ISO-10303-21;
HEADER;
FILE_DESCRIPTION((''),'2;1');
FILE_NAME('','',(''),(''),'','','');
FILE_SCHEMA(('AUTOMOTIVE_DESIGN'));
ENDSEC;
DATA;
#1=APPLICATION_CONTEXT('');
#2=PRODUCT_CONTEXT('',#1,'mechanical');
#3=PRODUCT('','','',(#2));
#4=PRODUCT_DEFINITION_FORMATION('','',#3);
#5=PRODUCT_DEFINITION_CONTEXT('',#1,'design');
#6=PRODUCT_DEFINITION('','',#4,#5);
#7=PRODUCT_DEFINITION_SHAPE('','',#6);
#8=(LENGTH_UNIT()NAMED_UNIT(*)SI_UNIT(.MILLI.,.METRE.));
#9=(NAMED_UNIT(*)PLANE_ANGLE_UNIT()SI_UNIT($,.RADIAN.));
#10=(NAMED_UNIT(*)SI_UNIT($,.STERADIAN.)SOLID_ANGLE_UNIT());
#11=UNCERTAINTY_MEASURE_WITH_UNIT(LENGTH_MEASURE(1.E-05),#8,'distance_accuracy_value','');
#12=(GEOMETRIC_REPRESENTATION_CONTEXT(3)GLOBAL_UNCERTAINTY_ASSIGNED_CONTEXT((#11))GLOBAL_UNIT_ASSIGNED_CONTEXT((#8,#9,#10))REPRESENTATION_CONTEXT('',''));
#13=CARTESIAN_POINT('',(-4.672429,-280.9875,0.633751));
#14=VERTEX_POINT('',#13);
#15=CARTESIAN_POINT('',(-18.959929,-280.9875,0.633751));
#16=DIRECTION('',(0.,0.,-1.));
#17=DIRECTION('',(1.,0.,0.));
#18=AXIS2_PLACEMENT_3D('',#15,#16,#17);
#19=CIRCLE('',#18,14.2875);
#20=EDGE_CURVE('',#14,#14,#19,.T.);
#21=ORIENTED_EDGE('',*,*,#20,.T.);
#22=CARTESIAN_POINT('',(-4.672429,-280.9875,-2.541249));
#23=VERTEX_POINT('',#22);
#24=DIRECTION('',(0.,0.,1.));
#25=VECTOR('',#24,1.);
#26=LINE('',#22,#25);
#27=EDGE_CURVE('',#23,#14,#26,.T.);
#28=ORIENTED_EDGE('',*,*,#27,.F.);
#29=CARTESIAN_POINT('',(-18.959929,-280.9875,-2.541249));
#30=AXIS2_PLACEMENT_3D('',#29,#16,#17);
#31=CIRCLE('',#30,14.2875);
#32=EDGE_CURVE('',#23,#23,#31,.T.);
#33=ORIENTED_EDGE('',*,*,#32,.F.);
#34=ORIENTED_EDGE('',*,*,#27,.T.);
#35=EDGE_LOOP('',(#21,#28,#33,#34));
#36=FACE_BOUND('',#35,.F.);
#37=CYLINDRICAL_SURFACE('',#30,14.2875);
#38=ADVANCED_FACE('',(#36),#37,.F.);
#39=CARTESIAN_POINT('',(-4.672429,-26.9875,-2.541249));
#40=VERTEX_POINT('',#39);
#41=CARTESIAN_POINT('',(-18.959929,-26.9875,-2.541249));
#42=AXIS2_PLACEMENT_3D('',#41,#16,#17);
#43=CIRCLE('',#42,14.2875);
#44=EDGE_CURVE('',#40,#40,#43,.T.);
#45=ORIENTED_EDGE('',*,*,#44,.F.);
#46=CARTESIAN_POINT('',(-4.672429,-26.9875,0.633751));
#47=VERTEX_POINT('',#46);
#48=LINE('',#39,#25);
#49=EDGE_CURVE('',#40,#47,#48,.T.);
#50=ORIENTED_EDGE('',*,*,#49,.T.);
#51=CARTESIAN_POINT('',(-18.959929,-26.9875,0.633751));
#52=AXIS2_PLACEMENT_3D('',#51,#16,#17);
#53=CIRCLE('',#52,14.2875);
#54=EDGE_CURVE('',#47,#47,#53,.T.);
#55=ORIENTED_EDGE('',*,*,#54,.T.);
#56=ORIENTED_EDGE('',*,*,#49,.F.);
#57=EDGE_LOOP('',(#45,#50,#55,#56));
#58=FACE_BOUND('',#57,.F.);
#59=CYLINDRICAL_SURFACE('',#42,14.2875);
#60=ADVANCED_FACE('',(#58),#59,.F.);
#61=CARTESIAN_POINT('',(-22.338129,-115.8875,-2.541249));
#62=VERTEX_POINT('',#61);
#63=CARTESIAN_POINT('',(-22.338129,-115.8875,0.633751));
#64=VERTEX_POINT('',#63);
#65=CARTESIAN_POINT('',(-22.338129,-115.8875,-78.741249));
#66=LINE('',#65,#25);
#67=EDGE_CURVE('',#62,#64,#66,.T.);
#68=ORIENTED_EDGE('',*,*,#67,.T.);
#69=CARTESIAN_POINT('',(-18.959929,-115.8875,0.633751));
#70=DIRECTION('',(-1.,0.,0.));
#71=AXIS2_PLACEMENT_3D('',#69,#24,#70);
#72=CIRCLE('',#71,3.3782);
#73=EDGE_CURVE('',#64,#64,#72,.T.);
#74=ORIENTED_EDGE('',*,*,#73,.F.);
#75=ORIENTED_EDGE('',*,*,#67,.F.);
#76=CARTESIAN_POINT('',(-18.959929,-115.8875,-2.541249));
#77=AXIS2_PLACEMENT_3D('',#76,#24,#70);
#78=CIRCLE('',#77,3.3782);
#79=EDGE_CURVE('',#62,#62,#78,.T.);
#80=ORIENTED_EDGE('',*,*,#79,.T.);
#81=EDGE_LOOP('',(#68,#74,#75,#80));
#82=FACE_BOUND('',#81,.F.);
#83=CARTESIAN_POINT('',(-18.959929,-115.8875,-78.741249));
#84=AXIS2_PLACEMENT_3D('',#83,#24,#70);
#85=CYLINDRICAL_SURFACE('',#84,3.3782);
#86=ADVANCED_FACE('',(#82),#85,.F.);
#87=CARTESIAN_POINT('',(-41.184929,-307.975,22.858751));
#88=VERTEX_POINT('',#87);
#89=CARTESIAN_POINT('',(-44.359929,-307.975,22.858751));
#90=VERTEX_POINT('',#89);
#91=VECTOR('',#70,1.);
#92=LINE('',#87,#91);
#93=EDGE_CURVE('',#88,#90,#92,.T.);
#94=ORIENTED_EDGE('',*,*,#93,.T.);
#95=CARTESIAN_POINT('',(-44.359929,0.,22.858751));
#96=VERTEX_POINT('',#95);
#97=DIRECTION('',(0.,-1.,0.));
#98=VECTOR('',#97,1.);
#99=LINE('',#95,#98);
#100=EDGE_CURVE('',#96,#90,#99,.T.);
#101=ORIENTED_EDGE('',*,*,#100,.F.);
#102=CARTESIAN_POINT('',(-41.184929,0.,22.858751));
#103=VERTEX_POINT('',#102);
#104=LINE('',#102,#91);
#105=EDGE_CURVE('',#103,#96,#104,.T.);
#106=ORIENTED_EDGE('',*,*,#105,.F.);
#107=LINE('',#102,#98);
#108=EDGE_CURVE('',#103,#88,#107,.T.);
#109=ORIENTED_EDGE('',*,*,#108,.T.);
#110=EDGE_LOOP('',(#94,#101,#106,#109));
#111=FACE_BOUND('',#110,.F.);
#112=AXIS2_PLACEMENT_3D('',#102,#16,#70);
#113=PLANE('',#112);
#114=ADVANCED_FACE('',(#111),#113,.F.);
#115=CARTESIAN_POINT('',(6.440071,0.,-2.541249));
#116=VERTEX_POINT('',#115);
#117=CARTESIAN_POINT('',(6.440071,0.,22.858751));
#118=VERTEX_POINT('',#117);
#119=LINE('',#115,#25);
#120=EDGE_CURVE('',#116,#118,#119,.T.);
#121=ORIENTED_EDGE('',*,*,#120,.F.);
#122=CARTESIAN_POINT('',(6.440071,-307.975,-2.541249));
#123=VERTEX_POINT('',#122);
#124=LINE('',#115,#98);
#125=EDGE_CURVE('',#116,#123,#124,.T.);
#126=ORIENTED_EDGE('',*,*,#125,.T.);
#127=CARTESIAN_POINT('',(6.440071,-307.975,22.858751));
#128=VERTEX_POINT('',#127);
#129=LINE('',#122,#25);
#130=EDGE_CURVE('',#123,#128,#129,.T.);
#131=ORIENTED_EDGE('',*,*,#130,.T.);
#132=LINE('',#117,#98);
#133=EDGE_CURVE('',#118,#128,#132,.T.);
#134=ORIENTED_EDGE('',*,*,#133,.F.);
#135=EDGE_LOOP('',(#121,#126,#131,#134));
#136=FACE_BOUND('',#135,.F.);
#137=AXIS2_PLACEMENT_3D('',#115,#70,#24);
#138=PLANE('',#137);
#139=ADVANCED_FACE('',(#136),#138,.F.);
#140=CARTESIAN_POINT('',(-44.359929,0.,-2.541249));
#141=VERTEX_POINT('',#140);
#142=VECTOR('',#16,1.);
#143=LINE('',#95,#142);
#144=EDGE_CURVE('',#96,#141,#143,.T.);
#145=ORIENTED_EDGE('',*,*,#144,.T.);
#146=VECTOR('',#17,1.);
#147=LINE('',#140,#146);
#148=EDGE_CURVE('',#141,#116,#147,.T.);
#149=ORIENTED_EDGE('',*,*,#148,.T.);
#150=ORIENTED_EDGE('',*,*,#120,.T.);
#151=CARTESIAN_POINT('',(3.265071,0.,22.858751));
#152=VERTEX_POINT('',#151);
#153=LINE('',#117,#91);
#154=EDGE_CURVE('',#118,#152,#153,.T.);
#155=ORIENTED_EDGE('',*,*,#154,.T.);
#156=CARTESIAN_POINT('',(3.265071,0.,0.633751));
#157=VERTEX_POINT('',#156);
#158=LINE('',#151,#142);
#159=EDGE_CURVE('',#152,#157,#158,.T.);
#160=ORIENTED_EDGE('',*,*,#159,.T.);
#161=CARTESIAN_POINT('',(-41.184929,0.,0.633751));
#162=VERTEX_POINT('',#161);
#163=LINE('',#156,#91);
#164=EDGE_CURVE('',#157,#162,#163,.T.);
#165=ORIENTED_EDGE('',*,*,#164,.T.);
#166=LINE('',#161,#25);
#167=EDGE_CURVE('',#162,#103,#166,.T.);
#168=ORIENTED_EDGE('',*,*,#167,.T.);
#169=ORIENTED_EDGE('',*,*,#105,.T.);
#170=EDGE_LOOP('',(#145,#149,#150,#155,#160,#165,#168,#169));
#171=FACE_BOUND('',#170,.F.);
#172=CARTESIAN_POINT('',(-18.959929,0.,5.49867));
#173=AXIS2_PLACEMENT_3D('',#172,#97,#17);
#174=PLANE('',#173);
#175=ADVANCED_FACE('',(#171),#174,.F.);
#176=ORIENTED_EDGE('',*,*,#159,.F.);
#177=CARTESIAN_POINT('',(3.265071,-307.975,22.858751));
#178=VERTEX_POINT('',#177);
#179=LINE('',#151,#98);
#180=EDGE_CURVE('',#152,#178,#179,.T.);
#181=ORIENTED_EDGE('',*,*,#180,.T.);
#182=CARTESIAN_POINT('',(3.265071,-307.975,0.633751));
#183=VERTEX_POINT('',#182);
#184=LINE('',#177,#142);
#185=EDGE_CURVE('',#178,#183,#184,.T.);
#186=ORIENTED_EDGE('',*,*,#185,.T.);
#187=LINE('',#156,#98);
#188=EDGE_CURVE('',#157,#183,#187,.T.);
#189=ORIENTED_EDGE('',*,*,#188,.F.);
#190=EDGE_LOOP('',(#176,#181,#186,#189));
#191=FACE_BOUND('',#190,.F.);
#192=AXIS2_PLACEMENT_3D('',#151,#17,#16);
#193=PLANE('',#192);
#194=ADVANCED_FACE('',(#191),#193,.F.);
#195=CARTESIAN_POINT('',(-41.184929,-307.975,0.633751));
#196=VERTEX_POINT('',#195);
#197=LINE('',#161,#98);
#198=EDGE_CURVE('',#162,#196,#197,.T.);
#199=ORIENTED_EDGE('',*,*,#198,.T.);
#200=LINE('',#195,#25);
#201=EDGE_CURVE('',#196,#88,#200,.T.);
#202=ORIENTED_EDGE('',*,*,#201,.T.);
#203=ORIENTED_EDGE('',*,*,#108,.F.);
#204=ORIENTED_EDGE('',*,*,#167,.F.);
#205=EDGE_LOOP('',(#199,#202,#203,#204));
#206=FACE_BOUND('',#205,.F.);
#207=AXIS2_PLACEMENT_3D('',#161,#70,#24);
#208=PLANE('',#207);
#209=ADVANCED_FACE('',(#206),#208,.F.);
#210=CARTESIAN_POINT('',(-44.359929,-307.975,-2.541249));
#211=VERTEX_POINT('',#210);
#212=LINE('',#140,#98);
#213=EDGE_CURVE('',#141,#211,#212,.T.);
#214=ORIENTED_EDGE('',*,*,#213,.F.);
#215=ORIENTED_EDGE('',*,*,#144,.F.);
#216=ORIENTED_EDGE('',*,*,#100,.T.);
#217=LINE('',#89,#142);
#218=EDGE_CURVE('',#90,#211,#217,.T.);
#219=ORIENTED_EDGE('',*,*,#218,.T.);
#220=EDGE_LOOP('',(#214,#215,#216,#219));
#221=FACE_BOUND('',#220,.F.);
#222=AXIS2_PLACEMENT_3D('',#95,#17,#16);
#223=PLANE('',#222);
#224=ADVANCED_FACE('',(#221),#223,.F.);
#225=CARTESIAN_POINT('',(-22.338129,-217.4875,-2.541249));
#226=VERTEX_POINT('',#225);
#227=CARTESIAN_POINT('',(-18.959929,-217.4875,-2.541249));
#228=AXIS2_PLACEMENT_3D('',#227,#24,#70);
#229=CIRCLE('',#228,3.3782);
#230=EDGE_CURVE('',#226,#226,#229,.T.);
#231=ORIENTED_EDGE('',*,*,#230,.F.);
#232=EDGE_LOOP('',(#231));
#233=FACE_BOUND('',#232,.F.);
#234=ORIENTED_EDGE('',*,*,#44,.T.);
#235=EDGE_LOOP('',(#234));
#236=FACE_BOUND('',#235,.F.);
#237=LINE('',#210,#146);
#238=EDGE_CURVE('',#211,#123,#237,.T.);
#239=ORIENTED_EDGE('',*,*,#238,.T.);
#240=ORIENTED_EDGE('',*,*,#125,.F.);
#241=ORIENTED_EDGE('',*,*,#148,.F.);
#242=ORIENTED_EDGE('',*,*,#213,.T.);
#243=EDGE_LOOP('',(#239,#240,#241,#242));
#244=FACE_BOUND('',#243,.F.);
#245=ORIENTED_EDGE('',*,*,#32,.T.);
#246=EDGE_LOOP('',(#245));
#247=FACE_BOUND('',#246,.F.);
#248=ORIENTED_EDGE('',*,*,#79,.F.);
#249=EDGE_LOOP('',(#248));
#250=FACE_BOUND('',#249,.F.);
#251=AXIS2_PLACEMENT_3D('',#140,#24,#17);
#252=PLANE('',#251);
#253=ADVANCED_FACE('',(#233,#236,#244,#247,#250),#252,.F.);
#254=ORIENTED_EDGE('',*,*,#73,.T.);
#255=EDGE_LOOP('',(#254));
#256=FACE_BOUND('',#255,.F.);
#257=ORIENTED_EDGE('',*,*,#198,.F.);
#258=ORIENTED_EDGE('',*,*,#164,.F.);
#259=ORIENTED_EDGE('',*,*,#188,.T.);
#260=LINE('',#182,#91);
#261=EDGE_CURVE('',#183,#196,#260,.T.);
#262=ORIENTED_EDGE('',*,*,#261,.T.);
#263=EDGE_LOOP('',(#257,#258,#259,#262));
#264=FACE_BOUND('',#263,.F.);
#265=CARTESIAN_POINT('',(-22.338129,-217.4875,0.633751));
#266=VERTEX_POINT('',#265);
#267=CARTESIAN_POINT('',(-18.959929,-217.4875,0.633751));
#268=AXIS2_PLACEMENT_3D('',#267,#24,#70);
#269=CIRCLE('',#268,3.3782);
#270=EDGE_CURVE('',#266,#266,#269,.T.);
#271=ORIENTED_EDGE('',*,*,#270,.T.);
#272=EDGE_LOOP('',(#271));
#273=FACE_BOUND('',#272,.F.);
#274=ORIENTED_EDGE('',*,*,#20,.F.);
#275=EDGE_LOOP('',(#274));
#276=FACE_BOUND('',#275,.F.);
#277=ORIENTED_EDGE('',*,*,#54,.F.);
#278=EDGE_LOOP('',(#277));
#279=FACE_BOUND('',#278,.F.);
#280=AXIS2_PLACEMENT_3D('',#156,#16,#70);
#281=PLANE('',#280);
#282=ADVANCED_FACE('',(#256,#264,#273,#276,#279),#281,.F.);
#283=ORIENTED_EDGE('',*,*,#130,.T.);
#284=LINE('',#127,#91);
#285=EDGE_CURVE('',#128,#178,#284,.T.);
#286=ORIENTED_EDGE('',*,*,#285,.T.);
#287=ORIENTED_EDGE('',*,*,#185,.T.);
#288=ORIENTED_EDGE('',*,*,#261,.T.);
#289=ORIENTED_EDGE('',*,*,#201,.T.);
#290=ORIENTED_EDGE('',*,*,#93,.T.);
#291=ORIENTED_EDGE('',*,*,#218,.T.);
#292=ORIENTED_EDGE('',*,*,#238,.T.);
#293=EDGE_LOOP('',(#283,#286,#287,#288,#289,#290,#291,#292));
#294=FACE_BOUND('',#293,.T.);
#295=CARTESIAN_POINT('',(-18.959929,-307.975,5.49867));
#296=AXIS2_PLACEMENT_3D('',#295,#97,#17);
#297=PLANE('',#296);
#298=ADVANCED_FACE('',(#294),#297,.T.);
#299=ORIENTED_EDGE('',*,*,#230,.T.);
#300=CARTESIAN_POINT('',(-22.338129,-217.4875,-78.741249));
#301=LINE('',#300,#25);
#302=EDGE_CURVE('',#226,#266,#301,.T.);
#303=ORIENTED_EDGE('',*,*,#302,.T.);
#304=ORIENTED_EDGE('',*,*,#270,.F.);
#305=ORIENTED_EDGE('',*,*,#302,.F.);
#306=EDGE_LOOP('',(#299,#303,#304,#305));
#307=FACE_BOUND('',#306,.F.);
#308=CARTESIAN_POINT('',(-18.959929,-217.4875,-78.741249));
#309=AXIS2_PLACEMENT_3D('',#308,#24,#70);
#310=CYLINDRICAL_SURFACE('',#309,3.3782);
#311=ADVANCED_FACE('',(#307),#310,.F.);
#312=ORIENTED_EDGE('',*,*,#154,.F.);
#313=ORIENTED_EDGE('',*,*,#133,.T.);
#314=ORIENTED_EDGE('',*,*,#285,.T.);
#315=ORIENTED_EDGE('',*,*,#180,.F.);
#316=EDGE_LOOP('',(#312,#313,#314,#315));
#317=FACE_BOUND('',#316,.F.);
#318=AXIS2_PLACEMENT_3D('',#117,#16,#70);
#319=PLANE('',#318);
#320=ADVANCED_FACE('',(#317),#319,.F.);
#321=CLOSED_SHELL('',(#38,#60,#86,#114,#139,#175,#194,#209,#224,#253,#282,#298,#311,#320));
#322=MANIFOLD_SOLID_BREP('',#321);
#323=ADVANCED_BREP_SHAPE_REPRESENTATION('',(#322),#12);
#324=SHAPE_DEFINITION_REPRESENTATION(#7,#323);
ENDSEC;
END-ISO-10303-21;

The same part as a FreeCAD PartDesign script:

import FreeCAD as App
import Part
import Sketcher
Q = App.Units.Quantity

doc = App.newDocument("Part")
body = doc.addObject("PartDesign::Body", "Body")

sketch1 = body.newObject("Sketcher::SketchObject", "Sketch")
sketch1.AttachmentSupport = (doc.getObject("XZ_Plane"), [""])
sketch1.MapMode = "FlatFace"
sketch1.addGeometry([
    Part.LineSegment(App.Vector(-41.2, 22.9, 0), App.Vector(-44.4, 22.9, 0)),
    Part.LineSegment(App.Vector(-44.4, 22.9, 0), App.Vector(-44.4, -2.5, 0)),
    Part.LineSegment(App.Vector(-44.4, -2.5, 0), App.Vector(6.4, -2.5, 0)),
    Part.LineSegment(App.Vector(6.4, -2.5, 0), App.Vector(6.4, 22.9, 0)),
    Part.LineSegment(App.Vector(6.4, 22.9, 0), App.Vector(3.3, 22.9, 0)),
    Part.LineSegment(App.Vector(3.3, 22.9, 0), App.Vector(3.3, 0.6, 0)),
    Part.LineSegment(App.Vector(3.3, 0.6, 0), App.Vector(-41.2, 0.6, 0)),
    Part.LineSegment(App.Vector(-41.2, 0.6, 0), App.Vector(-41.2, 22.9, 0)),
], False)
sketch1.addConstraint([
    Sketcher.Constraint("Coincident", 0, 2, 1, 1),
    Sketcher.Constraint("Coincident", 1, 2, 2, 1),
    Sketcher.Constraint("Coincident", 2, 2, 3, 1),
    Sketcher.Constraint("Coincident", 3, 2, 4, 1),
    Sketcher.Constraint("Coincident", 4, 2, 5, 1),
    Sketcher.Constraint("Coincident", 5, 2, 6, 1),
    Sketcher.Constraint("Coincident", 6, 2, 7, 1),
    Sketcher.Constraint("Coincident", 7, 2, 0, 1),
    Sketcher.Constraint("Horizontal", 0),
    Sketcher.Constraint("Vertical", 1),
    Sketcher.Constraint("Horizontal", 2),
    Sketcher.Constraint("Vertical", 3),
    Sketcher.Constraint("Horizontal", 4),
    Sketcher.Constraint("Vertical", 5),
    Sketcher.Constraint("Horizontal", 6),
    Sketcher.Constraint("Vertical", 7),
    Sketcher.Constraint("Horizontal", 0, 2, 3, 2),
    Sketcher.Constraint("Equal", 0, 4),
    Sketcher.Constraint("DistanceX", 2, 1, 2, 2, Q("2 in")),
    Sketcher.Constraint("DistanceY", 1, 2, 1, 1, Q("1 in")),
    Sketcher.Constraint("DistanceX", 6, 2, 6, 1, Q("1.75 in")),
    Sketcher.Constraint("DistanceY", 5, 2, 5, 1, Q("0.875 in")),
    Sketcher.Constraint("DistanceX", 0, 2, -1, 1, 44.359929),
    Sketcher.Constraint("DistanceY", -1, 1, 0, 2, 22.858751),
])
pad1 = body.newObject("PartDesign::Pad", "Pad")
pad1.Profile = sketch1
pad1.Length = Q("12.125 in")

sketch2 = body.newObject("Sketcher::SketchObject", "Sketch001")
sketch2.AttachmentSupport = (doc.getObject("XY_Plane"), [""])
sketch2.MapMode = "FlatFace"
sketch2.AttachmentOffset = App.Placement(App.Vector(0, 0, -2.541249), App.Rotation())
sketch2.addGeometry([
    Part.Circle(App.Vector(-19, -281, 0), App.Vector(0, 0, 1), 14),
    Part.Circle(App.Vector(-19, -27, 0), App.Vector(0, 0, 1), 14),
], False)
sketch2.addConstraint([
    Sketcher.Constraint("Equal", 0, 1),
    Sketcher.Constraint("Vertical", 0, 3, 1, 3),
    Sketcher.Constraint("Diameter", 0, Q("1.125 in")),
    Sketcher.Constraint("DistanceY", 0, 3, 1, 3, Q("10 in")),
    Sketcher.Constraint("DistanceY", 0, 3, -1, 1, Q("11.0625 in")),
    Sketcher.Constraint("DistanceX", 0, 3, -1, 1, 18.959929),
])
pocket1 = body.newObject("PartDesign::Pocket", "Pocket")
pocket1.Profile = sketch2
pocket1.Length = Q("1 in")
pocket1.Reversed = True

sketch3 = body.newObject("Sketcher::SketchObject", "Sketch002")
sketch3.AttachmentSupport = (doc.getObject("XY_Plane"), [""])
sketch3.MapMode = "FlatFace"
sketch3.AttachmentOffset = App.Placement(App.Vector(0, 0, -2.541249), App.Rotation())
sketch3.addGeometry([
    Part.Circle(App.Vector(-19, -217.5, 0), App.Vector(0, 0, 1), 3.4),
    Part.Circle(App.Vector(-19, -115.9, 0), App.Vector(0, 0, 1), 3.4),
], False)
sketch3.addConstraint([
    Sketcher.Constraint("Equal", 0, 1),
    Sketcher.Constraint("Vertical", 0, 3, 1, 3),
    Sketcher.Constraint("Diameter", 0, Q("0.266 in")),
    Sketcher.Constraint("DistanceY", 0, 3, 1, 3, Q("4 in")),
    Sketcher.Constraint("DistanceY", 0, 3, -1, 1, Q("8.5625 in")),
    Sketcher.Constraint("DistanceX", 0, 3, -1, 1, 18.959929),
])
doc.recompute()
hole = body.newObject("PartDesign::Hole", "Hole")
hole.Profile = sketch3
hole.ThreadType = "None"
hole.Diameter = Q("0.266 in")
hole.DepthType = "Dimension"
hole.Depth = Q("3 in")
hole.DrillPoint = "Angled"
hole.DrillPointAngle = 118
hole.Reversed = True

doc.recompute()
